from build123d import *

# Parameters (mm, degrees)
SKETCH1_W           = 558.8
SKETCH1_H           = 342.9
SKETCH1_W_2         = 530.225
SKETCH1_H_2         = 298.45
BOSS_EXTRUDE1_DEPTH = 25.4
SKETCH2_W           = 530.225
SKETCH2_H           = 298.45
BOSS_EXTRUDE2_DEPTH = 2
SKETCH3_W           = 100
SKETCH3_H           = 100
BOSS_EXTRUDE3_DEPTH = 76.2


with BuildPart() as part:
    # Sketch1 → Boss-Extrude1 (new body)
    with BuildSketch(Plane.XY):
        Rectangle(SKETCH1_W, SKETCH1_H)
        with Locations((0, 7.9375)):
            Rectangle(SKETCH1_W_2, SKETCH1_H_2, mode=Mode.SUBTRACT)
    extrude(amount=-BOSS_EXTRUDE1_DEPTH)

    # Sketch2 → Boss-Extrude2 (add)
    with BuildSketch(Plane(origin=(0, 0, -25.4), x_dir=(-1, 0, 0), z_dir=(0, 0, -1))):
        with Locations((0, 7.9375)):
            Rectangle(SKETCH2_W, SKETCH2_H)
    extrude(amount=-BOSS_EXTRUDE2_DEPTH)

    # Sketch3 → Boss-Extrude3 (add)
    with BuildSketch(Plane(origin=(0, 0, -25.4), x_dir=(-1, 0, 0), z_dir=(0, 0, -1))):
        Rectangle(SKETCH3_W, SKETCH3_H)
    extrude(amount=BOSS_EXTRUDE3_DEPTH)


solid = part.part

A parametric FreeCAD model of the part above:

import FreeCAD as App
import Part
import Sketcher
Q = App.Units.Quantity

doc = App.newDocument("Part")
params = doc.addObject("Spreadsheet::Sheet", "Params")
for row, (alias, value) in enumerate([
    ("sketch1_width", "22 in"),
    ("sketch1_height", "13.5 in"),
    ("sketch1_height2", "11.75 in"),
    ("sketch1_width2", "20.875 in"),
    ("pad1_length", "1 in"),
    ("sketch2_height", "11.75 in"),
    ("sketch2_width", "20.875 in"),
    ("pad2_length", "2 mm"),
    ("pad3_length", "3 in"),
], start=1):
    params.set(f"A{row}", alias)
    params.set(f"B{row}", "=" + value)
    params.setAlias(f"B{row}", alias)

body = doc.addObject("PartDesign::Body", "Body")

# Sketch on XY plane
sketch1 = body.newObject("Sketcher::SketchObject", "Sketch")
sketch1.AttachmentSupport = (doc.getObject("XY_Plane"), [""])
sketch1.MapMode = "FlatFace"
sketch1.addGeometry(Part.LineSegment(App.Vector(-279.4, 171.45, 0), App.Vector(-279.4, -171.45, 0)), False)
sketch1.addGeometry(Part.LineSegment(App.Vector(-279.4, -171.45, 0), App.Vector(279.4, -171.45, 0)), False)
sketch1.addGeometry(Part.LineSegment(App.Vector(279.4, -171.45, 0), App.Vector(279.4, 171.45, 0)), False)
sketch1.addGeometry(Part.LineSegment(App.Vector(279.4, 171.45, 0), App.Vector(-279.4, 171.45, 0)), False)
sketch1.addGeometry(Part.LineSegment(App.Vector(265.1125, -141.2875, 0), App.Vector(-265.1125, -141.2875, 0)), False)
sketch1.addGeometry(Part.LineSegment(App.Vector(-265.1125, -141.2875, 0), App.Vector(-265.1125, 157.1625, 0)), False)
sketch1.addGeometry(Part.LineSegment(App.Vector(-265.1125, 157.1625, 0), App.Vector(265.1125, 157.1625, 0)), False)
sketch1.addGeometry(Part.LineSegment(App.Vector(265.1125, 157.1625, 0), App.Vector(265.1125, -141.2875, 0)), False)
sketch1.addConstraint(Sketcher.Constraint("Coincident", 0, 2, 1, 1))
sketch1.addConstraint(Sketcher.Constraint("Coincident", 1, 2, 2, 1))
sketch1.addConstraint(Sketcher.Constraint("Coincident", 2, 2, 3, 1))
sketch1.addConstraint(Sketcher.Constraint("Coincident", 3, 2, 0, 1))
sketch1.addConstraint(Sketcher.Constraint("Coincident", 4, 2, 5, 1))
sketch1.addConstraint(Sketcher.Constraint("Coincident", 5, 2, 6, 1))
sketch1.addConstraint(Sketcher.Constraint("Coincident", 6, 2, 7, 1))
sketch1.addConstraint(Sketcher.Constraint("Coincident", 7, 2, 4, 1))
sketch1.addConstraint(Sketcher.Constraint("Vertical", 0))
sketch1.addConstraint(Sketcher.Constraint("Horizontal", 1))
sketch1.addConstraint(Sketcher.Constraint("Vertical", 2))
sketch1.addConstraint(Sketcher.Constraint("Horizontal", 3))
sketch1.addConstraint(Sketcher.Constraint("Horizontal", 4))
sketch1.addConstraint(Sketcher.Constraint("Vertical", 5))
sketch1.addConstraint(Sketcher.Constraint("Horizontal", 6))
sketch1.addConstraint(Sketcher.Constraint("Vertical", 7))
sketch1.addConstraint(Sketcher.Constraint("Symmetric", 0, 2, 2, 2, -1, 1))
sketch1.addConstraint(Sketcher.Constraint("DistanceX", 1, 1, 1, 2, Q("22 in")))
sketch1.addConstraint(Sketcher.Constraint("DistanceY", 0, 2, 0, 1, Q("13.5 in")))
sketch1.addConstraint(Sketcher.Constraint("DistanceY", 5, 1, 5, 2, Q("11.75 in")))
sketch1.addConstraint(Sketcher.Constraint("DistanceX", 4, 2, 4, 1, Q("20.875 in")))
sketch1.addConstraint(Sketcher.Constraint("DistanceX", 4, 2, -1, 1, Q("10.4375 in")))
sketch1.addConstraint(Sketcher.Constraint("DistanceY", 4, 2, -1, 1, Q("5.5625 in")))
sketch1.setExpression("Constraints[17]", "Params.sketch1_width")
sketch1.setExpression("Constraints[18]", "Params.sketch1_height")
sketch1.setExpression("Constraints[19]", "Params.sketch1_height2")
sketch1.setExpression("Constraints[20]", "Params.sketch1_width2")
pad1 = body.newObject("PartDesign::Pad", "Pad")
pad1.Profile = sketch1
pad1.setExpression("Length", "Params.pad1_length")
pad1.Reversed = True

# Sketch on XY plane
sketch2 = body.newObject("Sketcher::SketchObject", "Sketch001")
sketch2.AttachmentSupport = (doc.getObject("XY_Plane"), [""])
sketch2.MapMode = "FlatFace"
sketch2.AttachmentOffset = App.Placement(App.Vector(0, 0, -1 * 25.4), App.Rotation())
sketch2.addGeometry(Part.LineSegment(App.Vector(265.1125, 157.1625, 0), App.Vector(265.1125, -141.2875, 0)), False)
sketch2.addGeometry(Part.LineSegment(App.Vector(265.1125, -141.2875, 0), App.Vector(-265.1125, -141.2875, 0)), False)
sketch2.addGeometry(Part.LineSegment(App.Vector(-265.1125, -141.2875, 0), App.Vector(-265.1125, 157.1625, 0)), False)
sketch2.addGeometry(Part.LineSegment(App.Vector(-265.1125, 157.1625, 0), App.Vector(265.1125, 157.1625, 0)), False)
sketch2.addConstraint(Sketcher.Constraint("Coincident", 0, 2, 1, 1))
sketch2.addConstraint(Sketcher.Constraint("Coincident", 1, 2, 2, 1))
sketch2.addConstraint(Sketcher.Constraint("Coincident", 2, 2, 3, 1))
sketch2.addConstraint(Sketcher.Constraint("Coincident", 3, 2, 0, 1))
sketch2.addConstraint(Sketcher.Constraint("Vertical", 0))
sketch2.addConstraint(Sketcher.Constraint("Horizontal", 1))
sketch2.addConstraint(Sketcher.Constraint("Vertical", 2))
sketch2.addConstraint(Sketcher.Constraint("Horizontal", 3))
sketch2.addConstraint(Sketcher.Constraint("DistanceY", 0, 2, 0, 1, Q("11.75 in")))
sketch2.addConstraint(Sketcher.Constraint("DistanceX", 1, 2, 1, 1, Q("20.875 in")))
sketch2.addConstraint(Sketcher.Constraint("DistanceX", -1, 1, 0, 2, Q("10.4375 in")))
sketch2.addConstraint(Sketcher.Constraint("DistanceY", 0, 2, -1, 1, Q("5.5625 in")))
sketch2.setExpression("Constraints[8]", "Params.sketch2_height")
sketch2.setExpression("Constraints[9]", "Params.sketch2_width")
pad2 = body.newObject("PartDesign::Pad", "Pad001")
pad2.Profile = sketch2
pad2.setExpression("Length", "Params.pad2_length")

# Sketch on XY plane
sketch3 = body.newObject("Sketcher::SketchObject", "Sketch002")
sketch3.AttachmentSupport = (doc.getObject("XY_Plane"), [""])
sketch3.MapMode = "FlatFace"
sketch3.AttachmentOffset = App.Placement(App.Vector(0, 0, -1 * 25.4), App.Rotation())
sketch3.addGeometry(Part.LineSegment(App.Vector(50, 50, 0), App.Vector(50, -50, 0)), False)
sketch3.addGeometry(Part.LineSegment(App.Vector(50, -50, 0), App.Vector(-50, -50, 0)), False)
sketch3.addGeometry(Part.LineSegment(App.Vector(-50, -50, 0), App.Vector(-50, 50, 0)), False)
sketch3.addGeometry(Part.LineSegment(App.Vector(-50, 50, 0), App.Vector(50, 50, 0)), False)
sketch3.addConstraint(Sketcher.Constraint("Coincident", 0, 2, 1, 1))
sketch3.addConstraint(Sketcher.Constraint("Coincident", 1, 2, 2, 1))
sketch3.addConstraint(Sketcher.Constraint("Coincident", 2, 2, 3, 1))
sketch3.addConstraint(Sketcher.Constraint("Coincident", 3, 2, 0, 1))
sketch3.addConstraint(Sketcher.Constraint("Vertical", 0))
sketch3.addConstraint(Sketcher.Constraint("Horizontal", 1))
sketch3.addConstraint(Sketcher.Constraint("Vertical", 2))
sketch3.addConstraint(Sketcher.Constraint("Horizontal", 3))
sketch3.addConstraint(Sketcher.Constraint("Symmetric", 0, 2, 2, 2, -1, 1))
sketch3.addConstraint(Sketcher.Constraint("Equal", 3, 0))
sketch3.addConstraint(Sketcher.Constraint("DistanceX", 1, 2, 1, 1, Q("100 mm")))
pad3 = body.newObject("PartDesign::Pad", "Pad002")
pad3.Profile = sketch3
pad3.setExpression("Length", "Params.pad3_length")
pad3.Reversed = True

doc.recompute()
